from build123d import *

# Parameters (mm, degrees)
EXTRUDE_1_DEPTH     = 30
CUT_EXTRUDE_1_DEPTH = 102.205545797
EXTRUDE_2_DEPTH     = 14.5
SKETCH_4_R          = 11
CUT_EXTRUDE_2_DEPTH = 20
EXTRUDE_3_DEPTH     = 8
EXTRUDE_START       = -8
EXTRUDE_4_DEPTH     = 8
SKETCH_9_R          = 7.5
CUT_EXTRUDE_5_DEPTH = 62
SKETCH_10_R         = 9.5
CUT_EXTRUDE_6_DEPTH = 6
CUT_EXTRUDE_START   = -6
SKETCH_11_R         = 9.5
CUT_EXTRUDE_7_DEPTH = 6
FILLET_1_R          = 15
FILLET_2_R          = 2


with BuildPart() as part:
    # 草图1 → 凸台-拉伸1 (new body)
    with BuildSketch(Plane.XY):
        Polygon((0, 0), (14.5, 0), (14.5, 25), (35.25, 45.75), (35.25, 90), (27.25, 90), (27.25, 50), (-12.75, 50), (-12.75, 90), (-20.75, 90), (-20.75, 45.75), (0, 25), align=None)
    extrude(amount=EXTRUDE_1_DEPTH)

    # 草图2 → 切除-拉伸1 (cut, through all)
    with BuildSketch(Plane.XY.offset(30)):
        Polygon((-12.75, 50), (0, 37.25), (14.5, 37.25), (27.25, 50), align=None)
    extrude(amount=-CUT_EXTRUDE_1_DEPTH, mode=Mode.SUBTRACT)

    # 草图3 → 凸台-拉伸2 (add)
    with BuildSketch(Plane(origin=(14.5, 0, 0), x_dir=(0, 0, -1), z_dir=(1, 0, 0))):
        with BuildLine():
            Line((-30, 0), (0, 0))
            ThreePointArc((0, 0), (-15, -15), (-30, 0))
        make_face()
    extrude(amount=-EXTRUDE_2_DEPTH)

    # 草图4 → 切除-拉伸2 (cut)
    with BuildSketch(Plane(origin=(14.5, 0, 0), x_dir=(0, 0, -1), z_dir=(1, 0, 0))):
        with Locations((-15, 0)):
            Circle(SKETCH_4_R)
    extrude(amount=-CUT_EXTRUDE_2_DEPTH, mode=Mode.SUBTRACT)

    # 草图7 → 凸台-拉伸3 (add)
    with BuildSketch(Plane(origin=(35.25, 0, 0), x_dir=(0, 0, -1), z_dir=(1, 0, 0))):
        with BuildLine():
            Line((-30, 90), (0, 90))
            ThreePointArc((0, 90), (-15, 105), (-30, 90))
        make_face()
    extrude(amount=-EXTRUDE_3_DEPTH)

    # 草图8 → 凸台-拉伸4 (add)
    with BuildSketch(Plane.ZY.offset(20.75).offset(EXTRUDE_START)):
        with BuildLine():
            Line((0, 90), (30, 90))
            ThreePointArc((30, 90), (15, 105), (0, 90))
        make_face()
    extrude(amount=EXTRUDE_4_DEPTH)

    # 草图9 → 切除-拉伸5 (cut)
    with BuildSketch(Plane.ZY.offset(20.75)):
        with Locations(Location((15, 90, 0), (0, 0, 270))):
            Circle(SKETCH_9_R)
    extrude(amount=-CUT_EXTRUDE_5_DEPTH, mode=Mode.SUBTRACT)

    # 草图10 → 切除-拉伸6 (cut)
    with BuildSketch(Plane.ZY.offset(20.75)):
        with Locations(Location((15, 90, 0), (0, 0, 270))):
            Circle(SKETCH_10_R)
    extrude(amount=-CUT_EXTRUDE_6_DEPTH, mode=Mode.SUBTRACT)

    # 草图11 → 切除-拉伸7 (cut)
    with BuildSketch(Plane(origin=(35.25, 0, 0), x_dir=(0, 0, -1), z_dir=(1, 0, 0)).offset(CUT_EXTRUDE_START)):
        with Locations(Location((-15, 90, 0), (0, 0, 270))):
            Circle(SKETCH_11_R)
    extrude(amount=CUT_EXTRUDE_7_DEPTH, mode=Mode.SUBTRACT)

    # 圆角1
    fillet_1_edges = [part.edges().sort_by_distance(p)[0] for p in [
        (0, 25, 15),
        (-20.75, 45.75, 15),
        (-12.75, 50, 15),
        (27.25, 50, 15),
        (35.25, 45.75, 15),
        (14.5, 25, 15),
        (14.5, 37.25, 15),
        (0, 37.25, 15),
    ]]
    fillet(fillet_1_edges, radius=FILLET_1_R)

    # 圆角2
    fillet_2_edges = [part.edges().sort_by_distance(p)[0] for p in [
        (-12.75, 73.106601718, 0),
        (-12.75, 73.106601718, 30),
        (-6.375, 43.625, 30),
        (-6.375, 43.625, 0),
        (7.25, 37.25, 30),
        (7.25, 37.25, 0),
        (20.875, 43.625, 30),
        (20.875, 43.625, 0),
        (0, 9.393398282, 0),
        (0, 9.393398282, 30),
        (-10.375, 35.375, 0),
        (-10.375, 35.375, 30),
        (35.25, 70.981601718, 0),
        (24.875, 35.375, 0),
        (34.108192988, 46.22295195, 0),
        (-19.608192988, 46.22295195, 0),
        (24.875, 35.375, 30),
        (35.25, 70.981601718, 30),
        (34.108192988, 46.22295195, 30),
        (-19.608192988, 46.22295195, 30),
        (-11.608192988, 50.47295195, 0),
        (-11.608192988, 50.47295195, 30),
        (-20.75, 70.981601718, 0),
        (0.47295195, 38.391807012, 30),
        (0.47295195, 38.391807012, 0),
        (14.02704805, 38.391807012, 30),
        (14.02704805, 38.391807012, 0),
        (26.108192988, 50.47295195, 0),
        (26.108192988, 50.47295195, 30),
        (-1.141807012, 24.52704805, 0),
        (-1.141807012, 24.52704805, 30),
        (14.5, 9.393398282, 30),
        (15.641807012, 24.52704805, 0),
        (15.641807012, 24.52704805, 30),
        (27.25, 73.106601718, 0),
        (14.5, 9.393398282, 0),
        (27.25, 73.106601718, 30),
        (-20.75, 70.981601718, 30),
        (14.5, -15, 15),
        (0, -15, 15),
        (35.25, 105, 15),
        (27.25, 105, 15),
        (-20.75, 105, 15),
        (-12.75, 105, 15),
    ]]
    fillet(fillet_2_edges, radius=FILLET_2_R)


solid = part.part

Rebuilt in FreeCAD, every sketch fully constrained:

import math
import FreeCAD as App
import Part
import Sketcher

V = App.Vector


def edges_at(feature, points):
    """Names of the edges that pass closest to the given points."""
    edges = feature.Shape.Edges
    near = lambda p: min(range(len(edges)), key=lambda i: edges[i].distToShape(Part.Vertex(*p))[0])
    return sorted({f"Edge{near(p) + 1}" for p in points})

doc = App.newDocument("Part")
body = doc.addObject("PartDesign::Body", "Body")

# Sketch on XY plane
sketch1 = body.newObject("Sketcher::SketchObject", "Sketch")
sketch1.AttachmentSupport = (doc.getObject("XY_Plane"), [""])
sketch1.MapMode = "FlatFace"
sketch1.addGeometry(Part.LineSegment(V(0, 0, 0), V(14, 0, 0)), False)
sketch1.addGeometry(Part.LineSegment(V(14, 0, 0), V(14, 25, 0)), False)
sketch1.addGeometry(Part.LineSegment(V(14, 25, 0), V(35, 46, 0)), False)
sketch1.addGeometry(Part.LineSegment(V(35, 46, 0), V(35, 90, 0)), False)
sketch1.addGeometry(Part.LineSegment(V(35, 90, 0), V(27, 90, 0)), False)
sketch1.addGeometry(Part.LineSegment(V(27, 90, 0), V(27, 50, 0)), False)
sketch1.addGeometry(Part.LineSegment(V(27, 50, 0), V(-13, 50, 0)), False)
sketch1.addGeometry(Part.LineSegment(V(-13, 50, 0), V(-13, 90, 0)), False)
sketch1.addGeometry(Part.LineSegment(V(-13, 90, 0), V(-21, 90, 0)), False)
sketch1.addGeometry(Part.LineSegment(V(-21, 90, 0), V(-21, 46, 0)), False)
sketch1.addGeometry(Part.LineSegment(V(-21, 46, 0), V(0, 25, 0)), False)
sketch1.addGeometry(Part.LineSegment(V(0, 25, 0), V(0, 0, 0)), False)
sketch1.addConstraint(Sketcher.Constraint("Coincident", 0, 2, 1, 1))
sketch1.addConstraint(Sketcher.Constraint("Coincident", 1, 2, 2, 1))
sketch1.addConstraint(Sketcher.Constraint("Coincident", 2, 2, 3, 1))
sketch1.addConstraint(Sketcher.Constraint("Coincident", 3, 2, 4, 1))
sketch1.addConstraint(Sketcher.Constraint("Coincident", 4, 2, 5, 1))
sketch1.addConstraint(Sketcher.Constraint("Coincident", 5, 2, 6, 1))
sketch1.addConstraint(Sketcher.Constraint("Coincident", 6, 2, 7, 1))
sketch1.addConstraint(Sketcher.Constraint("Coincident", 7, 2, 8, 1))
sketch1.addConstraint(Sketcher.Constraint("Coincident", 8, 2, 9, 1))
sketch1.addConstraint(Sketcher.Constraint("Coincident", 9, 2, 10, 1))
sketch1.addConstraint(Sketcher.Constraint("Coincident", 10, 2, 11, 1))
sketch1.addConstraint(Sketcher.Constraint("Coincident", 11, 2, 0, 1))
sketch1.addConstraint(Sketcher.Constraint("Horizontal", 0))
sketch1.addConstraint(Sketcher.Constraint("Vertical", 1))
sketch1.addConstraint(Sketcher.Constraint("Vertical", 3))
sketch1.addConstraint(Sketcher.Constraint("Horizontal", 4))
sketch1.addConstraint(Sketcher.Constraint("Vertical", 5))
sketch1.addConstraint(Sketcher.Constraint("Horizontal", 6))
sketch1.addConstraint(Sketcher.Constraint("Vertical", 7))
sketch1.addConstraint(Sketcher.Constraint("Horizontal", 8))
sketch1.addConstraint(Sketcher.Constraint("Vertical", 9))
sketch1.addConstraint(Sketcher.Constraint("Vertical", 11))
sketch1.addConstraint(Sketcher.Constraint("Coincident", 11, 2, -1, 1))
sketch1.addConstraint(Sketcher.Constraint("Perpendicular", 2, 10))
sketch1.addConstraint(Sketcher.Constraint("Horizontal", 4, 2, 7, 2))
sketch1.addConstraint(Sketcher.Constraint("Horizontal", 2, 2, 9, 2))
sketch1.addConstraint(Sketcher.Constraint("Horizontal", 1, 2, 10, 2))
sketch1.addConstraint(Sketcher.Constraint("Equal", 4, 8))
sketch1.addConstraint(Sketcher.Constraint("Equal", 6, 5))
sketch1.addConstraint(Sketcher.Constraint("Equal", 2, 10))
sketch1.addConstraint(Sketcher.Constraint("DistanceX", 4, 2, 4, 1, 8.0))
sketch1.addConstraint(Sketcher.Constraint("DistanceX", 6, 2, 6, 1, 40.0))
sketch1.addConstraint(Sketcher.Constraint("DistanceY", 1, 1, 1, 2, 25.0))
sketch1.addConstraint(Sketcher.Constraint("DistanceX", 0, 1, 0, 2, 14.5))
sketch1.addConstraint(Sketcher.Constraint("DistanceY", -1, 1, 3, 2, 90.0))
pad1 = body.newObject("PartDesign::Pad", "Pad")
pad1.Profile = sketch1
pad1.Length = 30

# Sketch on XY plane
sketch2 = body.newObject("Sketcher::SketchObject", "Sketch001")
sketch2.AttachmentSupport = (doc.getObject("XY_Plane"), [""])
sketch2.MapMode = "FlatFace"
sketch2.AttachmentOffset = App.Placement(V(0, 0, 30), App.Rotation())
sketch2.addGeometry(Part.LineSegment(V(-13, 50, 0), V(0, 37, 0)), False)
sketch2.addGeometry(Part.LineSegment(V(0, 37, 0), V(14, 37, 0)), False)
sketch2.addGeometry(Part.LineSegment(V(14, 37, 0), V(27, 50, 0)), False)
sketch2.addGeometry(Part.LineSegment(V(27, 50, 0), V(-13, 50, 0)), False)
sketch2.addConstraint(Sketcher.Constraint("Coincident", 0, 2, 1, 1))
sketch2.addConstraint(Sketcher.Constraint("Coincident", 1, 2, 2, 1))
sketch2.addConstraint(Sketcher.Constraint("Coincident", 2, 2, 3, 1))
sketch2.addConstraint(Sketcher.Constraint("Coincident", 3, 2, 0, 1))
sketch2.addConstraint(Sketcher.Constraint("Horizontal", 1))
sketch2.addConstraint(Sketcher.Constraint("Horizontal", 3))
sketch2.addConstraint(Sketcher.Constraint("PointOnObject", 0, 2, -2))
sketch2.addConstraint(Sketcher.Constraint("Perpendicular", 0, 2))
sketch2.addConstraint(Sketcher.Constraint("Equal", 0, 2))
sketch2.addConstraint(Sketcher.Constraint("DistanceX", 3, 2, 3, 1, 40.0))
sketch2.addConstraint(Sketcher.Constraint("DistanceX", 1, 1, 1, 2, 14.5))
sketch2.addConstraint(Sketcher.Constraint("DistanceY", -1, 1, 2, 2, 50.0))
pocket1 = body.newObject("PartDesign::Pocket", "Pocket")
pocket1.Profile = sketch2
pocket1.Type = "ThroughAll"

# Sketch on YZ plane
sketch3 = body.newObject("Sketcher::SketchObject", "Sketch002")
sketch3.AttachmentSupport = (doc.getObject("YZ_Plane"), [""])
sketch3.MapMode = "FlatFace"
sketch3.AttachmentOffset = App.Placement(V(0, 0, 14.5), App.Rotation())
sketch3.addGeometry(Part.LineSegment(V(0, 0, 0), V(0, 30, 0)), False)
sketch3.addGeometry(Part.ArcOfCircle(Part.Circle(V(0, 15, 0), V(0, 0, 1), 15), math.radians(90), math.radians(270)), False)
sketch3.addConstraint(Sketcher.Constraint("Coincident", 0, 1, 1, 2))
sketch3.addConstraint(Sketcher.Constraint("Coincident", 1, 1, 0, 2))
sketch3.addConstraint(Sketcher.Constraint("Vertical", 0))
sketch3.addConstraint(Sketcher.Constraint("Coincident", 0, 1, -1, 1))
sketch3.addConstraint(Sketcher.Constraint("PointOnObject", 1, 3, -2))
sketch3.addConstraint(Sketcher.Constraint("Radius", 1, 15.0))
pad2 = body.newObject("PartDesign::Pad", "Pad001")
pad2.Profile = sketch3
pad2.Length = 14.5
pad2.Reversed = True

# Sketch on YZ plane
sketch4 = body.newObject("Sketcher::SketchObject", "Sketch003")
sketch4.AttachmentSupport = (doc.getObject("YZ_Plane"), [""])
sketch4.MapMode = "FlatFace"
sketch4.AttachmentOffset = App.Placement(V(0, 0, 14.5), App.Rotation())
sketch4.addGeometry(Part.Circle(V(0, 15, 0), V(0, 0, 1), 11), False)
sketch4.addConstraint(Sketcher.Constraint("PointOnObject", 0, 3, -2))
sketch4.addConstraint(Sketcher.Constraint("Diameter", 0, 22.0))
sketch4.addConstraint(Sketcher.Constraint("DistanceY", -1, 1, 0, 3, 15.0))
pocket2 = body.newObject("PartDesign::Pocket", "Pocket001")
pocket2.Profile = sketch4
pocket2.Length = 20

# Sketch on YZ plane
sketch5 = body.newObject("Sketcher::SketchObject", "Sketch004")
sketch5.AttachmentSupport = (doc.getObject("YZ_Plane"), [""])
sketch5.MapMode = "FlatFace"
sketch5.AttachmentOffset = App.Placement(V(0, 0, 35.25), App.Rotation())
sketch5.addGeometry(Part.LineSegment(V(90, 30, 0), V(90, 0, 0)), False)
sketch5.addGeometry(Part.ArcOfCircle(Part.Circle(V(90, 15, 0), V(0, 0, 1), 15), math.radians(-90), math.radians(90)), False)
sketch5.addConstraint(Sketcher.Constraint("Coincident", 0, 1, 1, 2))
sketch5.addConstraint(Sketcher.Constraint("Coincident", 1, 1, 0, 2))
sketch5.addConstraint(Sketcher.Constraint("Vertical", 0))
sketch5.addConstraint(Sketcher.Constraint("PointOnObject", 1, 1, -1))
sketch5.addConstraint(Sketcher.Constraint("Vertical", 1, 3, 0, 1))
sketch5.addConstraint(Sketcher.Constraint("Radius", 1, 15.0))
sketch5.addConstraint(Sketcher.Constraint("DistanceX", -1, 1, 1, 3, 90.0))
pad3 = body.newObject("PartDesign::Pad", "Pad002")
pad3.Profile = sketch5
pad3.Length = 8
pad3.Reversed = True

# Sketch on YZ plane
sketch6 = body.newObject("Sketcher::SketchObject", "Sketch005")
sketch6.AttachmentSupport = (doc.getObject("YZ_Plane"), [""])
sketch6.MapMode = "FlatFace"
sketch6.AttachmentOffset = App.Placement(V(0, 0, -12.75), App.Rotation())
sketch6.addGeometry(Part.LineSegment(V(90, 0, 0), V(90, 30, 0)), False)
sketch6.addGeometry(Part.ArcOfCircle(Part.Circle(V(90, 15, 0), V(0, 0, 1), 15), math.radians(-90), math.radians(90)), False)
sketch6.addConstraint(Sketcher.Constraint("Coincident", 0, 1, 1, 1))
sketch6.addConstraint(Sketcher.Constraint("Coincident", 1, 2, 0, 2))
sketch6.addConstraint(Sketcher.Constraint("Vertical", 0))
sketch6.addConstraint(Sketcher.Constraint("PointOnObject", 0, 1, -1))
sketch6.addConstraint(Sketcher.Constraint("Vertical", 1, 3, 0, 1))
sketch6.addConstraint(Sketcher.Constraint("Radius", 1, 15.0))
sketch6.addConstraint(Sketcher.Constraint("DistanceX", -1, 1, 1, 3, 90.0))
pad4 = body.newObject("PartDesign::Pad", "Pad003")
pad4.Profile = sketch6
pad4.Length = 8
pad4.Reversed = True

# Sketch on YZ plane
sketch7 = body.newObject("Sketcher::SketchObject", "Sketch006")
sketch7.AttachmentSupport = (doc.getObject("YZ_Plane"), [""])
sketch7.MapMode = "FlatFace"
sketch7.AttachmentOffset = App.Placement(V(0, 0, -20.75), App.Rotation())
sketch7.addGeometry(Part.Circle(V(90, 15, 0), V(0, 0, 1), 8), False)
sketch7.addConstraint(Sketcher.Constraint("Diameter", 0, 15.0))
sketch7.addConstraint(Sketcher.Constraint("DistanceX", -1, 1, 0, 3, 90.0))
sketch7.addConstraint(Sketcher.Constraint("DistanceY", -1, 1, 0, 3, 15.0))
pocket3 = body.newObject("PartDesign::Pocket", "Pocket002")
pocket3.Profile = sketch7
pocket3.Length = 62
pocket3.Reversed = True

# Sketch on YZ plane
sketch8 = body.newObject("Sketcher::SketchObject", "Sketch007")
sketch8.AttachmentSupport = (doc.getObject("YZ_Plane"), [""])
sketch8.MapMode = "FlatFace"
sketch8.AttachmentOffset = App.Placement(V(0, 0, -20.75), App.Rotation())
sketch8.addGeometry(Part.Circle(V(90, 15, 0), V(0, 0, 1), 10), False)
sketch8.addConstraint(Sketcher.Constraint("Diameter", 0, 19.0))
sketch8.addConstraint(Sketcher.Constraint("DistanceX", -1, 1, 0, 3, 90.0))
sketch8.addConstraint(Sketcher.Constraint("DistanceY", -1, 1, 0, 3, 15.0))
pocket4 = body.newObject("PartDesign::Pocket", "Pocket003")
pocket4.Profile = sketch8
pocket4.Length = 6
pocket4.Reversed = True

# Sketch on YZ plane
sketch9 = body.newObject("Sketcher::SketchObject", "Sketch008")
sketch9.AttachmentSupport = (doc.getObject("YZ_Plane"), [""])
sketch9.MapMode = "FlatFace"
sketch9.AttachmentOffset = App.Placement(V(0, 0, 29.25), App.Rotation())
sketch9.addGeometry(Part.Circle(V(90, 15, 0), V(0, 0, 1), 10), False)
sketch9.addConstraint(Sketcher.Constraint("Diameter", 0, 19.0))
sketch9.addConstraint(Sketcher.Constraint("DistanceX", -1, 1, 0, 3, 90.0))
sketch9.addConstraint(Sketcher.Constraint("DistanceY", -1, 1, 0, 3, 15.0))
pocket5 = body.newObject("PartDesign::Pocket", "Pocket004")
pocket5.Profile = sketch9
pocket5.Length = 6
pocket5.Reversed = True
doc.recompute()

fillet = body.newObject("PartDesign::Fillet", "Fillet")
fillet.Base = (pocket5, edges_at(pocket5, [
    (0, 25, 15),
    (-20.75, 45.75, 15),
    (-12.75, 50, 15),
    (27.25, 50, 15),
    (35.25, 45.75, 15),
    (14.5, 25, 15),
    (14.5, 37.25, 15),
    (0, 37.25, 15),
]))
fillet.Radius = 15
doc.recompute()

fillet2 = body.newObject("PartDesign::Fillet", "Fillet001")
fillet2.Base = (fillet, edges_at(fillet, [
    (-12.75, 73.107, 0),
    (-12.75, 73.107, 30),
    (-6.375, 43.625, 30),
    (-6.375, 43.625, 0),
    (7.25, 37.25, 30),
    (7.25, 37.25, 0),
    (20.875, 43.625, 30),
    (20.875, 43.625, 0),
    (0, 9.393, 0),
    (0, 9.393, 30),
    (-10.375, 35.375, 0),
    (-10.375, 35.375, 30),
    (35.25, 70.982, 0),
    (24.875, 35.375, 0),
    (34.108, 46.223, 0),
    (-19.608, 46.223, 0),
    (24.875, 35.375, 30),
    (35.25, 70.982, 30),
    (34.108, 46.223, 30),
    (-19.608, 46.223, 30),
    (-11.608, 50.473, 0),
    (-11.608, 50.473, 30),
    (-20.75, 70.982, 0),
    (0.473, 38.392, 30),
    (0.473, 38.392, 0),
    (14.027, 38.392, 30),
    (14.027, 38.392, 0),
    (26.108, 50.473, 0),
    (26.108, 50.473, 30),
    (-1.142, 24.527, 0),
    (-1.142, 24.527, 30),
    (14.5, 9.393, 30),
    (15.642, 24.527, 0),
    (15.642, 24.527, 30),
    (27.25, 73.107, 0),
    (14.5, 9.393, 0),
    (27.25, 73.107, 30),
    (-20.75, 70.982, 30),
    (14.5, -15, 15),
    (0, -15, 15),
    (35.25, 105, 15),
    (27.25, 105, 15),
    (-20.75, 105, 15),
    (-12.75, 105, 15),
]))
fillet2.Radius = 2

doc.recompute()
